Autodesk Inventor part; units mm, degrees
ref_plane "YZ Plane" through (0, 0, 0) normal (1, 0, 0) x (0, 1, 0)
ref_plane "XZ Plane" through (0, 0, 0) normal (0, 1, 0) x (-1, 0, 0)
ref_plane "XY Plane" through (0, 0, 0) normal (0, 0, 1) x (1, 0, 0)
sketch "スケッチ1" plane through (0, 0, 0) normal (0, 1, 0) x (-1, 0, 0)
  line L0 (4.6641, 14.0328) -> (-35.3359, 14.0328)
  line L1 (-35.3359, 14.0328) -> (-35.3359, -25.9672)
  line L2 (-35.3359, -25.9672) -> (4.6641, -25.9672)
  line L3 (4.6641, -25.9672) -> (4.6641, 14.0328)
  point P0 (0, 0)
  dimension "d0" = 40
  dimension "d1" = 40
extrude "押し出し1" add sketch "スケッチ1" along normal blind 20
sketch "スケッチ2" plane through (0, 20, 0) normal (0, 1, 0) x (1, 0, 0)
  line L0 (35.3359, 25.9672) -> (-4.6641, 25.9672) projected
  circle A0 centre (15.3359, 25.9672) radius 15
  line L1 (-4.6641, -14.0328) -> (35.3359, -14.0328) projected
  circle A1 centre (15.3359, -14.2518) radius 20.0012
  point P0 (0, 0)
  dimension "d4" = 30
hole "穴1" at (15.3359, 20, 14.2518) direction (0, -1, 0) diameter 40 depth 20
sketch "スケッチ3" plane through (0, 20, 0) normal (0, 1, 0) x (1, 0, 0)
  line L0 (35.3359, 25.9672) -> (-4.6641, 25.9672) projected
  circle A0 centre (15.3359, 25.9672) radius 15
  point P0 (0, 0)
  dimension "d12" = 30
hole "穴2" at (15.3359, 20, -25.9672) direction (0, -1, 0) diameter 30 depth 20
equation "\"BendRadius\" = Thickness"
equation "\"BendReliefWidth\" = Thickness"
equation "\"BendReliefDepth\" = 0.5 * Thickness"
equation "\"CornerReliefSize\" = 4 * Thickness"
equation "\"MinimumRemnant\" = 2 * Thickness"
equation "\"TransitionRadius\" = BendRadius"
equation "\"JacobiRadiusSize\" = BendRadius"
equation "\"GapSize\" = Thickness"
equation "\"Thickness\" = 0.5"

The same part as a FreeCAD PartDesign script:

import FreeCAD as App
import Part
import Sketcher
from FreeCAD import Vector


def add_polygon(sketch, points):
    """Adds a closed chain of lines whose ends are joined by coincident constraints."""
    first, n = sketch.GeometryCount, len(points)
    for a, b in zip(points, points[1:] + points[:1]):
        sketch.addGeometry(Part.LineSegment(App.Vector(*a, 0), App.Vector(*b, 0)), False)
    for i in range(n):
        sketch.addConstraint(Sketcher.Constraint("Coincident", first + i, 2, first + (i + 1) % n, 1))

doc = App.newDocument("Part")
body = doc.addObject("PartDesign::Body", "Body")

# Sketch on XZ plane
sketch1 = body.newObject("Sketcher::SketchObject", "Sketch")
sketch1.AttachmentSupport = (doc.getObject("XZ_Plane"), [""])
sketch1.MapMode = "FlatFace"
add_polygon(sketch1, [(-4.6641, -25.9672), (-4.6641, 14.0328), (35.3359, 14.0328), (35.3359, -25.9672)])  # lines 0-3
sketch1.addConstraint([
    Sketcher.Constraint("Vertical", 0),
    Sketcher.Constraint("Horizontal", 1),
    Sketcher.Constraint("Vertical", 2),
    Sketcher.Constraint("Horizontal", 3),
    Sketcher.Constraint("Equal", 3, 0),
    Sketcher.Constraint("DistanceX", 1, 1, 1, 2, 40.0),
    Sketcher.Constraint("DistanceX", 0, 2, -1, 1, 4.664),
    Sketcher.Constraint("DistanceY", -1, 1, 0, 2, 14.0328),
])
pad1 = body.newObject("PartDesign::Pad", "Pad")
pad1.Profile = sketch1
pad1.Length = 20
pad1.Reversed = True

# Sketch on XZ plane
sketch2 = body.newObject("Sketcher::SketchObject", "Sketch001")
sketch2.AttachmentSupport = (doc.getObject("XZ_Plane"), [""])
sketch2.MapMode = "FlatFace"
sketch2.AttachmentOffset = App.Placement(Vector(0, 0, -20), App.Rotation())
sketch2.addGeometry(Part.Circle(Vector(15.3359, 14.2518, 0), Vector(0, 0, 1), 20), False)
sketch2.addConstraint([
    Sketcher.Constraint("Diameter", 0, 40.0),
    Sketcher.Constraint("DistanceX", -1, 1, 0, 3, 15.336),
    Sketcher.Constraint("DistanceY", -1, 1, 0, 3, 14.2518),
])
doc.recompute()
hole = body.newObject("PartDesign::Hole", "Hole")
hole.Profile = sketch2
hole.ThreadType = "None"
hole.Diameter = 40
hole.DepthType = "Dimension"
hole.Depth = 20
hole.DrillPoint = "Flat"
hole.Reversed = True

# Sketch on XZ plane
sketch3 = body.newObject("Sketcher::SketchObject", "Sketch002")
sketch3.AttachmentSupport = (doc.getObject("XZ_Plane"), [""])
sketch3.MapMode = "FlatFace"
sketch3.AttachmentOffset = App.Placement(Vector(0, 0, -20), App.Rotation())
sketch3.addGeometry(Part.Circle(Vector(15.3359, -25.9672, 0), Vector(0, 0, 1), 15), False)
sketch3.addConstraint([
    Sketcher.Constraint("Diameter", 0, 30.0),
    Sketcher.Constraint("DistanceX", -1, 1, 0, 3, 15.336),
    Sketcher.Constraint("DistanceY", 0, 3, -1, 1, 25.9672),
])
doc.recompute()
hole2 = body.newObject("PartDesign::Hole", "Hole001")
hole2.Profile = sketch3
hole2.ThreadType = "None"
hole2.Diameter = 30
hole2.DepthType = "Dimension"
hole2.Depth = 20
hole2.DrillPoint = "Flat"
hole2.Reversed = True

doc.recompute()
